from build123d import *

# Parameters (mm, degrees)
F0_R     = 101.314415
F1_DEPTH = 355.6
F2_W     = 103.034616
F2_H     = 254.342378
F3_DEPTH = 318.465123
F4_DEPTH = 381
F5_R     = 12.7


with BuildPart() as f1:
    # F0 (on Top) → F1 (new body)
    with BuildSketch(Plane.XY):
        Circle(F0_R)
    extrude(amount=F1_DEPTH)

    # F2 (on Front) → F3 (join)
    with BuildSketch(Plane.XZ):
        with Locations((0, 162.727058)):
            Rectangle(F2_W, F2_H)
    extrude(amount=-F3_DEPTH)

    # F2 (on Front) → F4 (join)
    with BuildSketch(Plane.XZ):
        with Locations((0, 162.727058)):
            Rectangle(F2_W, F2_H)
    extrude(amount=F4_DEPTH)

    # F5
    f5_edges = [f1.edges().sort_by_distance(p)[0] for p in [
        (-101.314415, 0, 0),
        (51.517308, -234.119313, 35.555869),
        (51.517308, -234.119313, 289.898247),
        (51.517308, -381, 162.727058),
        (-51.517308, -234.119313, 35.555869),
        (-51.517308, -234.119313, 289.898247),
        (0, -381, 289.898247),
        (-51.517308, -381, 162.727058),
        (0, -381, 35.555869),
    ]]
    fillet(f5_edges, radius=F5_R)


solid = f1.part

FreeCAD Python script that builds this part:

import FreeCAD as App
import Part
import Sketcher

V = App.Vector
Q = App.Units.Quantity


def edges_at(feature, points):
    """Names of the edges that pass closest to the given points."""
    edges = feature.Shape.Edges
    near = lambda p: min(range(len(edges)), key=lambda i: edges[i].distToShape(Part.Vertex(*p))[0])
    return sorted({f"Edge{near(p) + 1}" for p in points})

doc = App.newDocument("Part")
body = doc.addObject("PartDesign::Body", "Body")

sketch1 = body.newObject("Sketcher::SketchObject", "Sketch")
sketch1.AttachmentSupport = (doc.getObject("XY_Plane"), [""])
sketch1.MapMode = "FlatFace"
sketch1.addGeometry(Part.Circle(V(0, 0, 0), V(0, 0, 1), 101.314415), False)
sketch1.addConstraint(Sketcher.Constraint("Coincident", 0, 3, -1, 1))
sketch1.addConstraint(Sketcher.Constraint("Diameter", 0, 202.62883))
pad1 = body.newObject("PartDesign::Pad", "Pad")
pad1.Profile = sketch1
pad1.Length = Q("14 in")

sketch2 = body.newObject("Sketcher::SketchObject", "Sketch001")
sketch2.AttachmentSupport = (doc.getObject("XZ_Plane"), [""])
sketch2.MapMode = "FlatFace"
sketch2.addGeometry(Part.LineSegment(V(-51.517308, 289.898247, 0), V(-51.517308, 35.555869, 0)), False)
sketch2.addGeometry(Part.LineSegment(V(-51.517308, 35.555869, 0), V(51.517308, 35.555869, 0)), False)
sketch2.addGeometry(Part.LineSegment(V(51.517308, 35.555869, 0), V(51.517308, 289.898247, 0)), False)
sketch2.addGeometry(Part.LineSegment(V(51.517308, 289.898247, 0), V(-51.517308, 289.898247, 0)), False)
sketch2.addConstraint(Sketcher.Constraint("Coincident", 0, 2, 1, 1))
sketch2.addConstraint(Sketcher.Constraint("Coincident", 1, 2, 2, 1))
sketch2.addConstraint(Sketcher.Constraint("Coincident", 2, 2, 3, 1))
sketch2.addConstraint(Sketcher.Constraint("Coincident", 3, 2, 0, 1))
sketch2.addConstraint(Sketcher.Constraint("Vertical", 0))
sketch2.addConstraint(Sketcher.Constraint("Horizontal", 1))
sketch2.addConstraint(Sketcher.Constraint("Vertical", 2))
sketch2.addConstraint(Sketcher.Constraint("Horizontal", 3))
sketch2.addConstraint(Sketcher.Constraint("DistanceY", 0, 2, 0, 1, 254.342378))
sketch2.addConstraint(Sketcher.Constraint("DistanceX", 1, 1, 1, 2, 103.034616))
sketch2.addConstraint(Sketcher.Constraint("DistanceY", -1, 1, 0, 2, 35.555869))
sketch2.addConstraint(Sketcher.Constraint("DistanceX", 0, 2, -1, 1, 51.517308))
pad2 = body.newObject("PartDesign::Pad", "Pad001")
pad2.Profile = sketch2
pad2.Length = 318.465123
pad2.Reversed = True

sketch3 = body.newObject("Sketcher::SketchObject", "Sketch002")
sketch3.AttachmentSupport = (doc.getObject("XZ_Plane"), [""])
sketch3.MapMode = "FlatFace"
sketch3.addGeometry(Part.LineSegment(V(-51.517308, 289.898247, 0), V(-51.517308, 35.555869, 0)), False)
sketch3.addGeometry(Part.LineSegment(V(-51.517308, 35.555869, 0), V(51.517308, 35.555869, 0)), False)
sketch3.addGeometry(Part.LineSegment(V(51.517308, 35.555869, 0), V(51.517308, 289.898247, 0)), False)
sketch3.addGeometry(Part.LineSegment(V(51.517308, 289.898247, 0), V(-51.517308, 289.898247, 0)), False)
sketch3.addConstraint(Sketcher.Constraint("Coincident", 0, 2, 1, 1))
sketch3.addConstraint(Sketcher.Constraint("Coincident", 1, 2, 2, 1))
sketch3.addConstraint(Sketcher.Constraint("Coincident", 2, 2, 3, 1))
sketch3.addConstraint(Sketcher.Constraint("Coincident", 3, 2, 0, 1))
sketch3.addConstraint(Sketcher.Constraint("Vertical", 0))
sketch3.addConstraint(Sketcher.Constraint("Horizontal", 1))
sketch3.addConstraint(Sketcher.Constraint("Vertical", 2))
sketch3.addConstraint(Sketcher.Constraint("Horizontal", 3))
sketch3.addConstraint(Sketcher.Constraint("DistanceY", 0, 2, 0, 1, 254.342378))
sketch3.addConstraint(Sketcher.Constraint("DistanceX", 1, 1, 1, 2, 103.034616))
sketch3.addConstraint(Sketcher.Constraint("DistanceY", -1, 1, 0, 2, 35.555869))
sketch3.addConstraint(Sketcher.Constraint("DistanceX", 0, 2, -1, 1, 51.517308))
pad3 = body.newObject("PartDesign::Pad", "Pad002")
pad3.Profile = sketch3
pad3.Length = Q("15 in")
doc.recompute()

fillet = body.newObject("PartDesign::Fillet", "Fillet")
fillet.Base = (pad3, edges_at(pad3, [
    (-101.314, 0, 0),
    (51.517, -234.119, 35.556),
    (51.517, -234.119, 289.898),
    (51.517, -381, 162.727),
    (-51.517, -234.119, 35.556),
    (-51.517, -234.119, 289.898),
    (0, -381, 289.898),
    (-51.517, -381, 162.727),
    (0, -381, 35.556),
]))
fillet.Radius = Q("0.5 in")

doc.recompute()
